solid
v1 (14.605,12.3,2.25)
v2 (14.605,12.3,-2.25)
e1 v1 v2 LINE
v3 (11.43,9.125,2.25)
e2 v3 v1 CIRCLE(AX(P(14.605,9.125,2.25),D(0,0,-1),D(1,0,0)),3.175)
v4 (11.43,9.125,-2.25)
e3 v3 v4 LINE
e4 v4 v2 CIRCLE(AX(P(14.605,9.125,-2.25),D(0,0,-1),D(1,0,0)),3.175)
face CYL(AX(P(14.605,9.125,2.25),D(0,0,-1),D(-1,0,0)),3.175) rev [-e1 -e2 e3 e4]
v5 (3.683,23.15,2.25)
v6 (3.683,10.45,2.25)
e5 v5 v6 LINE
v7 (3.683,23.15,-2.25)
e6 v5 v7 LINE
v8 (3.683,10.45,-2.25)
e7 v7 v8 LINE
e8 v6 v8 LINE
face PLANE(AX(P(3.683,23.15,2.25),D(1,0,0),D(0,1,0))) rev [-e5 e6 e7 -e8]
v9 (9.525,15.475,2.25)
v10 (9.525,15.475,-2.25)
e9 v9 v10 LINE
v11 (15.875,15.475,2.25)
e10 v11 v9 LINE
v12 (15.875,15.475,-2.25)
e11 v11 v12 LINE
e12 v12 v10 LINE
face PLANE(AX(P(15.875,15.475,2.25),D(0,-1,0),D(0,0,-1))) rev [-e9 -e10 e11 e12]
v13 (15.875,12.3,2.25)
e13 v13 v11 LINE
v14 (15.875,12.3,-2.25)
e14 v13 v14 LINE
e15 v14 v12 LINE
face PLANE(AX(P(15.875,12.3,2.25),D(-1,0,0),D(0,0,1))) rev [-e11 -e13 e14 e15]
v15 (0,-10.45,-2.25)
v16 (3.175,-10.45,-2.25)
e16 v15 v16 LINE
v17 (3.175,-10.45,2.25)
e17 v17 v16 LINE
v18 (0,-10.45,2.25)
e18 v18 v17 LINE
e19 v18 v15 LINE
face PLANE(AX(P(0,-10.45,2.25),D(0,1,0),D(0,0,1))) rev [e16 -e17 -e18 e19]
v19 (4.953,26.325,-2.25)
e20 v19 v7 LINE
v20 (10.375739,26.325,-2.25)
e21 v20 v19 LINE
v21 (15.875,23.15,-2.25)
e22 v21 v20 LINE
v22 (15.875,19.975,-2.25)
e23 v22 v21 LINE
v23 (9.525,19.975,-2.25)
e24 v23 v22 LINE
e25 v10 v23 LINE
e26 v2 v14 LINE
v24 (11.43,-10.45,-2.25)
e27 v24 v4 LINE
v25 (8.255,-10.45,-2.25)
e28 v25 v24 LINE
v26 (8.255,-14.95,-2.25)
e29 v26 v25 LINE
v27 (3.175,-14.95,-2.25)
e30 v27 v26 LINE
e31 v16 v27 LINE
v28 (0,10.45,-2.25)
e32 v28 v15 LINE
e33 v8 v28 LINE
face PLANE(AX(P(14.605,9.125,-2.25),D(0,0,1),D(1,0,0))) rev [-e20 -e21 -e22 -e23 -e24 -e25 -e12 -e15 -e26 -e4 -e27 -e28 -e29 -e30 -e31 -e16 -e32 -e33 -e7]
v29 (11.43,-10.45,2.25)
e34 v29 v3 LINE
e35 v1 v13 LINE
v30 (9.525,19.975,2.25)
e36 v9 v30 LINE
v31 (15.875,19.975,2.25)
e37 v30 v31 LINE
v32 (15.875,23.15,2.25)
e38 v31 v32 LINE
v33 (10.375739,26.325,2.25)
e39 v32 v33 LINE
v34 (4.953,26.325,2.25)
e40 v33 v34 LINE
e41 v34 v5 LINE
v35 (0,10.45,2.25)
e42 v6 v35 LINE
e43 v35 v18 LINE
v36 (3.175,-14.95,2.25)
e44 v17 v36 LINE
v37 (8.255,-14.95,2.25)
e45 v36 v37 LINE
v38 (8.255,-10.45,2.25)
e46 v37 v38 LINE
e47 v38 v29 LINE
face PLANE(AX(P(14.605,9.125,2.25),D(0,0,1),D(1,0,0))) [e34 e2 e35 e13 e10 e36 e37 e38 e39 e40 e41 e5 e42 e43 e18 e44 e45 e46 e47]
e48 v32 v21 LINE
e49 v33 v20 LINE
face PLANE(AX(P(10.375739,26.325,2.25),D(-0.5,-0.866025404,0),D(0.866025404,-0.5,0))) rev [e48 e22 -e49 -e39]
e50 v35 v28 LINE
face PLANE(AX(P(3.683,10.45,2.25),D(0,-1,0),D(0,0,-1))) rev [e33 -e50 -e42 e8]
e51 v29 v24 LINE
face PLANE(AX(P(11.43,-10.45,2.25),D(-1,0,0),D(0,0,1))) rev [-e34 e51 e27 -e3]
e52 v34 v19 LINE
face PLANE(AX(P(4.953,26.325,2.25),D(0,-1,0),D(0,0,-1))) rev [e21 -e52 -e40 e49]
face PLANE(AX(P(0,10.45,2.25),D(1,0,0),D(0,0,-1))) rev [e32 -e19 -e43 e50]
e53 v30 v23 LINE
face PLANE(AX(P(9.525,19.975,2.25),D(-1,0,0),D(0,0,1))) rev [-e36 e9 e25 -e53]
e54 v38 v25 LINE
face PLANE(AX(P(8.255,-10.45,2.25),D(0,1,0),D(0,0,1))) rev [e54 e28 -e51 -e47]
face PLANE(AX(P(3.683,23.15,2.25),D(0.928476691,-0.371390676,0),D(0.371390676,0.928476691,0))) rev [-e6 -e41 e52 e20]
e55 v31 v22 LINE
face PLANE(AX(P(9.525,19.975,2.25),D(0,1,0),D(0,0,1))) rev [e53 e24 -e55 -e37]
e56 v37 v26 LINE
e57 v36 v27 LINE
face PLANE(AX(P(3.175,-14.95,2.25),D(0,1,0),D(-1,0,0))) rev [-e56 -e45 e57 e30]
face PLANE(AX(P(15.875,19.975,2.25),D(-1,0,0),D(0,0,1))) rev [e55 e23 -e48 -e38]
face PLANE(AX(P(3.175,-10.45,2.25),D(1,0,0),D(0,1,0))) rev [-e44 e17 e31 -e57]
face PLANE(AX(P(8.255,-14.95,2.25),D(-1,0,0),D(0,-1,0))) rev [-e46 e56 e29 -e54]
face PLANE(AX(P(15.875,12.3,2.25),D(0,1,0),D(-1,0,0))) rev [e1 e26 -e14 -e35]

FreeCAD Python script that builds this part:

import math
import FreeCAD as App
import Part
import Sketcher
Q = App.Units.Quantity

doc = App.newDocument("Part")
body = doc.addObject("PartDesign::Body", "Body")

sketch1 = body.newObject("Sketcher::SketchObject", "Sketch")
sketch1.AttachmentSupport = (doc.getObject("XY_Plane"), [""])
sketch1.MapMode = "FlatFace"
sketch1.addGeometry([
    Part.LineSegment(App.Vector(0, 10.45, 0), App.Vector(0, -10.45, 0)),
    Part.LineSegment(App.Vector(0, -10.45, 0), App.Vector(3.175, -10.45, 0)),
    Part.LineSegment(App.Vector(3.175, -10.45, 0), App.Vector(3.175, -14.95, 0)),
    Part.LineSegment(App.Vector(3.175, -14.95, 0), App.Vector(8.255, -14.95, 0)),
    Part.LineSegment(App.Vector(8.255, -14.95, 0), App.Vector(8.255, -10.45, 0)),
    Part.LineSegment(App.Vector(8.255, -10.45, 0), App.Vector(11.43, -10.45, 0)),
    Part.LineSegment(App.Vector(11.43, -10.45, 0), App.Vector(11.43, 9.125, 0)),
    Part.ArcOfCircle(Part.Circle(App.Vector(14.605, 9.125, 0), App.Vector(0, 0, 1), 3.175), math.radians(90), math.radians(180)),
    Part.LineSegment(App.Vector(14.605, 12.3, 0), App.Vector(15.875, 12.3, 0)),
    Part.LineSegment(App.Vector(15.875, 12.3, 0), App.Vector(15.875, 15.475, 0)),
    Part.LineSegment(App.Vector(15.875, 15.475, 0), App.Vector(9.525, 15.475, 0)),
    Part.LineSegment(App.Vector(9.525, 15.475, 0), App.Vector(9.525, 19.975, 0)),
    Part.LineSegment(App.Vector(9.525, 19.975, 0), App.Vector(15.875, 19.975, 0)),
    Part.LineSegment(App.Vector(15.875, 19.975, 0), App.Vector(15.875, 23.15, 0)),
    Part.LineSegment(App.Vector(15.875, 23.15, 0), App.Vector(3.683, 23.15, 0)),
    Part.LineSegment(App.Vector(3.683, 23.15, 0), App.Vector(3.683, 10.45, 0)),
    Part.LineSegment(App.Vector(3.683, 10.45, 0), App.Vector(0, 10.45, 0)),
], False)
sketch1.addConstraint([
    Sketcher.Constraint("Coincident", 0, 2, 1, 1),
    Sketcher.Constraint("Coincident", 1, 2, 2, 1),
    Sketcher.Constraint("Coincident", 2, 2, 3, 1),
    Sketcher.Constraint("Coincident", 3, 2, 4, 1),
    Sketcher.Constraint("Coincident", 4, 2, 5, 1),
    Sketcher.Constraint("Coincident", 5, 2, 6, 1),
    Sketcher.Constraint("Tangent", 6, 2, 7, 2),
    Sketcher.Constraint("Tangent", 7, 1, 8, 1),
    Sketcher.Constraint("Coincident", 8, 2, 9, 1),
    Sketcher.Constraint("Coincident", 9, 2, 10, 1),
    Sketcher.Constraint("Coincident", 10, 2, 11, 1),
    Sketcher.Constraint("Coincident", 11, 2, 12, 1),
    Sketcher.Constraint("Coincident", 12, 2, 13, 1),
    Sketcher.Constraint("Coincident", 13, 2, 14, 1),
    Sketcher.Constraint("Coincident", 14, 2, 15, 1),
    Sketcher.Constraint("Coincident", 15, 2, 16, 1),
    Sketcher.Constraint("Coincident", 16, 2, 0, 1),
    Sketcher.Constraint("Vertical", 0),
    Sketcher.Constraint("Horizontal", 1),
    Sketcher.Constraint("Vertical", 2),
    Sketcher.Constraint("Horizontal", 3),
    Sketcher.Constraint("Vertical", 4),
    Sketcher.Constraint("Horizontal", 5),
    Sketcher.Constraint("Vertical", 6),
    Sketcher.Constraint("Horizontal", 8),
    Sketcher.Constraint("Vertical", 9),
    Sketcher.Constraint("Horizontal", 10),
    Sketcher.Constraint("Vertical", 11),
    Sketcher.Constraint("Horizontal", 12),
    Sketcher.Constraint("Vertical", 13),
    Sketcher.Constraint("Horizontal", 14),
    Sketcher.Constraint("Vertical", 15),
    Sketcher.Constraint("Horizontal", 16),
    Sketcher.Constraint("Symmetric", 0, 2, 16, 2, -1, 1),
    Sketcher.Constraint("Horizontal", 1, 2, 4, 2),
    Sketcher.Constraint("Vertical", 9, 2, 12, 2),
    Sketcher.Constraint("Equal", 1, 5),
    Sketcher.Constraint("Equal", 5, 9),
    Sketcher.Constraint("Equal", 4, 11),
    Sketcher.Constraint("Equal", 9, 13),
    Sketcher.Constraint("DistanceX", 3, 1, 3, 2, Q("0.2 in")),
    Sketcher.Constraint("DistanceY", 15, 2, 15, 1, Q("0.5 in")),
    Sketcher.Constraint("Radius", 7, Q("0.125 in")),
    Sketcher.Constraint("DistanceX", 8, 1, 8, 2, Q("0.05 in")),
    Sketcher.Constraint("DistanceX", 10, 2, 10, 1, Q("0.25 in")),
    Sketcher.Constraint("DistanceX", 14, 2, 14, 1, Q("0.48 in")),
    Sketcher.Constraint("DistanceX", 4, 2, 8, 2, Q("0.3 in")),
    Sketcher.Constraint("DistanceY", 0, 2, 0, 1, Q("20.9 mm")),
    Sketcher.Constraint("DistanceY", 2, 2, 2, 1, Q("4.5 mm")),
])
pad1 = body.newObject("PartDesign::Pad", "Pad")
pad1.Profile = sketch1
pad1.Length = 4.5
pad1.Midplane = True

sketch2 = body.newObject("Sketcher::SketchObject", "Sketch001")
sketch2.AttachmentSupport = (doc.getObject("XY_Plane"), [""])
sketch2.MapMode = "FlatFace"
sketch2.addGeometry([
    Part.LineSegment(App.Vector(4.953, 26.325, 0), App.Vector(3.683, 23.15, 0)),
    Part.LineSegment(App.Vector(3.683, 23.15, 0), App.Vector(15.875, 23.15, 0)),
    Part.LineSegment(App.Vector(15.875, 23.15, 0), App.Vector(10.375739, 26.325, 0)),
    Part.LineSegment(App.Vector(10.375739, 26.325, 0), App.Vector(4.953, 26.325, 0)),
], False)
sketch2.addConstraint([
    Sketcher.Constraint("Coincident", 0, 2, 1, 1),
    Sketcher.Constraint("Coincident", 1, 2, 2, 1),
    Sketcher.Constraint("Coincident", 2, 2, 3, 1),
    Sketcher.Constraint("Coincident", 3, 2, 0, 1),
    Sketcher.Constraint("Horizontal", 1),
    Sketcher.Constraint("Horizontal", 3),
    Sketcher.Constraint("Angle", 2, Q("150 deg")),
    Sketcher.Constraint("DistanceX", 1, 1, 1, 2, Q("0.48 in")),
    Sketcher.Constraint("Distance", 2, Q("0.25 in")),
    Sketcher.Constraint("DistanceX", 0, 2, 3, 2, Q("0.05 in")),
    Sketcher.Constraint("DistanceX", -1, 1, 0, 2, Q("0.145 in")),
    Sketcher.Constraint("DistanceY", -1, 1, 0, 2, Q("23.15 mm")),
])
pad2 = body.newObject("PartDesign::Pad", "Pad001")
pad2.Profile = sketch2
pad2.Length = 4.5
pad2.Midplane = True

sketch3 = body.newObject("Sketcher::SketchObject", "Sketch002")
sketch3.AttachmentSupport = (doc.getObject("XZ_Plane"), [""])
sketch3.MapMode = "FlatFace"
sketch3.AttachmentOffset = App.Placement(App.Vector(0, 0, -8.545), App.Rotation())
sketch3.addGeometry([
    Part.LineSegment(App.Vector(0, -2.25, 0), App.Vector(0, 2.25, 0)),
    Part.LineSegment(App.Vector(0, 2.25, 0), App.Vector(3.683, 2.25, 0)),
    Part.LineSegment(App.Vector(3.683, 2.25, 0), App.Vector(3.683, -2.25, 0)),
    Part.LineSegment(App.Vector(3.683, -2.25, 0), App.Vector(0, -2.25, 0)),
], False)
sketch3.addConstraint([
    Sketcher.Constraint("Coincident", 0, 2, 1, 1),
    Sketcher.Constraint("Coincident", 1, 2, 2, 1),
    Sketcher.Constraint("Coincident", 2, 2, 3, 1),
    Sketcher.Constraint("Coincident", 3, 2, 0, 1),
    Sketcher.Constraint("Vertical", 0),
    Sketcher.Constraint("Horizontal", 1),
    Sketcher.Constraint("Vertical", 2),
    Sketcher.Constraint("Horizontal", 3),
    Sketcher.Constraint("Symmetric", 0, 2, 3, 2, -1, 1),
    Sketcher.Constraint("DistanceX", 1, 1, 1, 2, Q("0.145 in")),
    Sketcher.Constraint("DistanceY", 0, 1, 0, 2, Q("4.5 mm")),
])
pad3 = body.newObject("PartDesign::Pad", "Pad002")
pad3.Profile = sketch3
pad3.Length = Q("0.045 in")
pad3.Reversed = True

doc.recompute()
